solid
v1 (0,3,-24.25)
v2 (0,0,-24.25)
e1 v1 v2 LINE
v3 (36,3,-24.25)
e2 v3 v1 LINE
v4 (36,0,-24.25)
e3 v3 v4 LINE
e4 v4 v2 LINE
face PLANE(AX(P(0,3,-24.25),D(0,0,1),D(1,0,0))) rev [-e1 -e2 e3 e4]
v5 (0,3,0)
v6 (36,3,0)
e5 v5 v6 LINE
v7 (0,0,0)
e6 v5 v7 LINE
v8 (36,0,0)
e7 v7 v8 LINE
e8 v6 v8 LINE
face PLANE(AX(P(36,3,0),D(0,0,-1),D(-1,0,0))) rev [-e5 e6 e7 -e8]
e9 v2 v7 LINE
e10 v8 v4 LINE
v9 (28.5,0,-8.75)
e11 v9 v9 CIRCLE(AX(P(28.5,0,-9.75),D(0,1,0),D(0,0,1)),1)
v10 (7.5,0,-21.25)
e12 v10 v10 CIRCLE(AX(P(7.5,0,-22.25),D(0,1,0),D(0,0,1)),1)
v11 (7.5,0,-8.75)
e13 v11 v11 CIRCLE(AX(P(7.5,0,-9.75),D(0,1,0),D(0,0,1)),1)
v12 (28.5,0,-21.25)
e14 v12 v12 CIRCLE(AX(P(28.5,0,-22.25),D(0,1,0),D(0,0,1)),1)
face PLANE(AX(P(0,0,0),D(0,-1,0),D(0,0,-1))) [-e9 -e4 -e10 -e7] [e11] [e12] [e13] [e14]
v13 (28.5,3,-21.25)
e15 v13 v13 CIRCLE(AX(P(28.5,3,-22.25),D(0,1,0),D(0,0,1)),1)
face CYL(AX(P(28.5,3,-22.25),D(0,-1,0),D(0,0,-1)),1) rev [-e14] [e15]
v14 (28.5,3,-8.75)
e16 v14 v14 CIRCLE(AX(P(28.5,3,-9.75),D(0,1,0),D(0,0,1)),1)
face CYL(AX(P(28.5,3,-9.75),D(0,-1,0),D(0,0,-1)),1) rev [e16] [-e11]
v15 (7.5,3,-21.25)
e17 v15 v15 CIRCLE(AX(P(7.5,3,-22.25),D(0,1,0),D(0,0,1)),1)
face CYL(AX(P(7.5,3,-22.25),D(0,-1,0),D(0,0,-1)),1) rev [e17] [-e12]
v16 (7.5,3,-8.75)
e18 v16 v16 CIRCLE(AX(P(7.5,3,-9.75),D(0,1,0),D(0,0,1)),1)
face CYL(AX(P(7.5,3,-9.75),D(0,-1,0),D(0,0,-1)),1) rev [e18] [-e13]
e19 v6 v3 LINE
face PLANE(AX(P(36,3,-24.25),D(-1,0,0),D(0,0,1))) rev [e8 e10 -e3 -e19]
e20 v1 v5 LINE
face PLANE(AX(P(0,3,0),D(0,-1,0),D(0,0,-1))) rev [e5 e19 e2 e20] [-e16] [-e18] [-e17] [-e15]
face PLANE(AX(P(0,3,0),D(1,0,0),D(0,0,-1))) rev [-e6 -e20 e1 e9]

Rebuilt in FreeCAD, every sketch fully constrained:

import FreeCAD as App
import Part
import Sketcher

doc = App.newDocument("Part")
params = doc.addObject("Spreadsheet::Sheet", "Params")
for row, (alias, value) in enumerate([
    ("sketch1_diameter", "2 mm"),
    ("sketch1_width", "36 mm"),
    ("sketch1_height", "24.25 mm"),
    ("pad1_length", "3 mm"),
], start=1):
    params.set(f"A{row}", alias)
    params.set(f"B{row}", "=" + value)
    params.setAlias(f"B{row}", alias)

body = doc.addObject("PartDesign::Body", "Body")

# Sketch on XZ plane
sketch1 = body.newObject("Sketcher::SketchObject", "Sketch")
sketch1.AttachmentSupport = (doc.getObject("XZ_Plane"), [""])
sketch1.MapMode = "FlatFace"
sketch1.addGeometry(Part.LineSegment(App.Vector(0, -24.2, 0), App.Vector(0, 0, 0)), False)
sketch1.addGeometry(Part.LineSegment(App.Vector(0, 0, 0), App.Vector(36, 0, 0)), False)
sketch1.addGeometry(Part.LineSegment(App.Vector(36, 0, 0), App.Vector(36, -24.2, 0)), False)
sketch1.addGeometry(Part.LineSegment(App.Vector(36, -24.2, 0), App.Vector(0, -24.2, 0)), False)
sketch1.addGeometry(Part.Circle(App.Vector(7.5, -9.8, 0), App.Vector(0, 0, 1), 1), False)
sketch1.addGeometry(Part.Circle(App.Vector(28.5, -9.8, 0), App.Vector(0, 0, 1), 1), False)
sketch1.addGeometry(Part.Circle(App.Vector(7.5, -22.2, 0), App.Vector(0, 0, 1), 1), False)
sketch1.addGeometry(Part.Circle(App.Vector(28.5, -22.2, 0), App.Vector(0, 0, 1), 1), False)
sketch1.addConstraint(Sketcher.Constraint("Coincident", 0, 2, 1, 1))
sketch1.addConstraint(Sketcher.Constraint("Coincident", 1, 2, 2, 1))
sketch1.addConstraint(Sketcher.Constraint("Coincident", 2, 2, 3, 1))
sketch1.addConstraint(Sketcher.Constraint("Coincident", 3, 2, 0, 1))
sketch1.addConstraint(Sketcher.Constraint("Vertical", 0))
sketch1.addConstraint(Sketcher.Constraint("Horizontal", 1))
sketch1.addConstraint(Sketcher.Constraint("Vertical", 2))
sketch1.addConstraint(Sketcher.Constraint("Horizontal", 3))
sketch1.addConstraint(Sketcher.Constraint("Coincident", 0, 2, -1, 1))
sketch1.addConstraint(Sketcher.Constraint("Equal", 4, 5))
sketch1.addConstraint(Sketcher.Constraint("Equal", 5, 6))
sketch1.addConstraint(Sketcher.Constraint("Equal", 6, 7))
sketch1.addConstraint(Sketcher.Constraint("Horizontal", 4, 3, 5, 3))
sketch1.addConstraint(Sketcher.Constraint("Horizontal", 6, 3, 7, 3))
sketch1.addConstraint(Sketcher.Constraint("Vertical", 4, 3, 6, 3))
sketch1.addConstraint(Sketcher.Constraint("Vertical", 5, 3, 7, 3))
sketch1.addConstraint(Sketcher.Constraint("Diameter", 4, 2.0))
sketch1.addConstraint(Sketcher.Constraint("DistanceX", 1, 1, 1, 2, 36.0))
sketch1.addConstraint(Sketcher.Constraint("DistanceX", 4, 3, 5, 3, 21.0))
sketch1.addConstraint(Sketcher.Constraint("DistanceY", 2, 2, 7, 3, 2.0))
sketch1.addConstraint(Sketcher.Constraint("DistanceY", 0, 1, 0, 2, 24.25))
sketch1.addConstraint(Sketcher.Constraint("DistanceX", -1, 1, 4, 3, 7.5))
sketch1.addConstraint(Sketcher.Constraint("DistanceY", 6, 3, 4, 3, 12.5))
sketch1.setExpression("Constraints[16]", "Params.sketch1_diameter")
sketch1.setExpression("Constraints[17]", "Params.sketch1_width")
sketch1.setExpression("Constraints[20]", "Params.sketch1_height")
pad1 = body.newObject("PartDesign::Pad", "Pad")
pad1.Profile = sketch1
pad1.setExpression("Length", "Params.pad1_length")
pad1.Reversed = True

doc.recompute()
